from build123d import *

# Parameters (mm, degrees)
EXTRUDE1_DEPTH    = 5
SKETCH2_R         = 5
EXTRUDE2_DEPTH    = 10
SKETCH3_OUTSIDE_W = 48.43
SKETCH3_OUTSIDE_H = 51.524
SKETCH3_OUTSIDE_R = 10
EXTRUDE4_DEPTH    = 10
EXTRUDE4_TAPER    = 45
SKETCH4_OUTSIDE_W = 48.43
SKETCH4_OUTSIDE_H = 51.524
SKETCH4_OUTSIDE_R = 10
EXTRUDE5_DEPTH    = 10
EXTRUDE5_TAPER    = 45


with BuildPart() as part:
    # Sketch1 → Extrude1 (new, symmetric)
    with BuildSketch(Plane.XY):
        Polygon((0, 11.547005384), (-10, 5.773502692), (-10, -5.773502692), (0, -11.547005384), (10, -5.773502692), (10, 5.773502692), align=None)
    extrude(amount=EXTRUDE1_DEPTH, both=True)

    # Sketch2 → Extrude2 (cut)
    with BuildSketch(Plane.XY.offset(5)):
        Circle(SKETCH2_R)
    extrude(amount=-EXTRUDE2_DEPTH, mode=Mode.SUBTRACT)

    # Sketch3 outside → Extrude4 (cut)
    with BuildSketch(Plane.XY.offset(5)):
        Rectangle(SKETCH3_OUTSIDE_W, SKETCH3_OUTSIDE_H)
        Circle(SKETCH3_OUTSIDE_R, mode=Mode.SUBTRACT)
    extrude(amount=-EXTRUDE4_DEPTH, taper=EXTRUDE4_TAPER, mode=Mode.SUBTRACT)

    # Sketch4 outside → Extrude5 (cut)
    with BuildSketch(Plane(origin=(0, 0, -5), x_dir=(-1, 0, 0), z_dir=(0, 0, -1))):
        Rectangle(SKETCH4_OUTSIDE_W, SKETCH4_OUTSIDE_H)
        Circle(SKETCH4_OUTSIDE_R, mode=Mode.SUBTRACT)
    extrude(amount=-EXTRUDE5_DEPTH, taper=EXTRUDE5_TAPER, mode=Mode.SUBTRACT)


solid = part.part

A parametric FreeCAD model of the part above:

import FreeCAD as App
import Part
import Sketcher

V = App.Vector
Q = App.Units.Quantity


def add_polygon(sketch, points):
    """Adds a closed chain of lines whose ends are joined by coincident constraints."""
    first, n = sketch.GeometryCount, len(points)
    for a, b in zip(points, points[1:] + points[:1]):
        sketch.addGeometry(Part.LineSegment(App.Vector(*a, 0), App.Vector(*b, 0)), False)
    for i in range(n):
        sketch.addConstraint(Sketcher.Constraint("Coincident", first + i, 2, first + (i + 1) % n, 1))

doc = App.newDocument("Part")
body = doc.addObject("PartDesign::Body", "Body")

sketch1 = doc.addObject("Sketcher::SketchObject", "Sketch")
body.addObject(sketch1)
sketch1.AttachmentSupport = (doc.XY_Plane, [""])
sketch1.MapMode = "FlatFace"
add_polygon(sketch1, [(0, 12), (-10, 6), (-10, -6), (0, -12), (10, -6), (10, 6)])
sketch1.addConstraint([
    Sketcher.Constraint("Vertical", 1),
    Sketcher.Constraint("Vertical", 4),
    Sketcher.Constraint("Symmetric", 0, 2, 3, 2, -1, 1),
    Sketcher.Constraint("Symmetric", 2, 2, 5, 2, -1, 1),
    Sketcher.Constraint("PointOnObject", 2, 2, -2),
    Sketcher.Constraint("Parallel", 2, 5),
    Sketcher.Constraint("Horizontal", 1, 2, 3, 2),
    Sketcher.Constraint("Angle", 0, Q("-150 deg")),
    Sketcher.Constraint("DistanceX", 0, 2, -1, 1, Q("10 mm")),
    Sketcher.Constraint("DistanceY", 1, 2, 1, 1, Q("11.547005 mm")),
])
pad1 = doc.addObject("PartDesign::Pad", "Pad")
body.addObject(pad1)
pad1.Profile = sketch1
pad1.Length = 10
pad1.Midplane = True

sketch2 = doc.addObject("Sketcher::SketchObject", "Sketch001")
body.addObject(sketch2)
sketch2.AttachmentSupport = (doc.XY_Plane, [""])
sketch2.MapMode = "FlatFace"
sketch2.AttachmentOffset = App.Placement(V(0, 0, 5), App.Rotation())
sketch2.addGeometry(Part.Circle(V(0, 0, 0), V(0, 0, 1), 5), False)
sketch2.addConstraint([
    Sketcher.Constraint("Coincident", 0, 3, -1, 1),
    Sketcher.Constraint("Diameter", 0, Q("10 mm")),
])
pocket1 = doc.addObject("PartDesign::Pocket", "Pocket")
body.addObject(pocket1)
pocket1.Profile = sketch2
pocket1.Length = 10

sketch3 = doc.addObject("Sketcher::SketchObject", "Sketch002")
body.addObject(sketch3)
sketch3.AttachmentSupport = (doc.XY_Plane, [""])
sketch3.MapMode = "FlatFace"
sketch3.AttachmentOffset = App.Placement(V(0, 0, 5), App.Rotation())
add_polygon(sketch3, [(-24, 26), (-24, -26), (24, -26), (24, 26)])
sketch3.addGeometry(Part.Circle(V(0, 0, 0), V(0, 0, 1), 10), False)
sketch3.addConstraint([
    Sketcher.Constraint("Vertical", 0),
    Sketcher.Constraint("Horizontal", 1),
    Sketcher.Constraint("Vertical", 2),
    Sketcher.Constraint("Horizontal", 3),
    Sketcher.Constraint("Coincident", 4, 3, -1, 1),
    Sketcher.Constraint("Symmetric", 0, 2, 2, 2, -1, 1),
    Sketcher.Constraint("Diameter", 4, Q("20 mm")),
    Sketcher.Constraint("DistanceX", 1, 1, 1, 2, Q("48.43 mm")),
    Sketcher.Constraint("DistanceY", 0, 2, 0, 1, Q("51.524 mm")),
])
pocket2 = doc.addObject("PartDesign::Pocket", "Pocket001")
body.addObject(pocket2)
pocket2.Profile = sketch3
pocket2.Length = 10
pocket2.TaperAngle = 45

sketch4 = doc.addObject("Sketcher::SketchObject", "Sketch003")
body.addObject(sketch4)
sketch4.AttachmentSupport = (doc.XY_Plane, [""])
sketch4.MapMode = "FlatFace"
sketch4.AttachmentOffset = App.Placement(V(0, 0, -5), App.Rotation())
add_polygon(sketch4, [(24, 26), (24, -26), (-24, -26), (-24, 26)])
sketch4.addGeometry(Part.Circle(V(0, 0, 0), V(0, 0, 1), 10), False)
sketch4.addConstraint([
    Sketcher.Constraint("Vertical", 0),
    Sketcher.Constraint("Horizontal", 1),
    Sketcher.Constraint("Vertical", 2),
    Sketcher.Constraint("Horizontal", 3),
    Sketcher.Constraint("Coincident", 4, 3, -1, 1),
    Sketcher.Constraint("Symmetric", 0, 2, 2, 2, -1, 1),
    Sketcher.Constraint("Diameter", 4, Q("20 mm")),
    Sketcher.Constraint("DistanceX", 1, 2, 1, 1, Q("48.43 mm")),
    Sketcher.Constraint("DistanceY", 0, 2, 0, 1, Q("51.524 mm")),
])
pocket3 = doc.addObject("PartDesign::Pocket", "Pocket002")
body.addObject(pocket3)
pocket3.Profile = sketch4
pocket3.Length = 10
pocket3.Reversed = True
pocket3.TaperAngle = 45

doc.recompute()
